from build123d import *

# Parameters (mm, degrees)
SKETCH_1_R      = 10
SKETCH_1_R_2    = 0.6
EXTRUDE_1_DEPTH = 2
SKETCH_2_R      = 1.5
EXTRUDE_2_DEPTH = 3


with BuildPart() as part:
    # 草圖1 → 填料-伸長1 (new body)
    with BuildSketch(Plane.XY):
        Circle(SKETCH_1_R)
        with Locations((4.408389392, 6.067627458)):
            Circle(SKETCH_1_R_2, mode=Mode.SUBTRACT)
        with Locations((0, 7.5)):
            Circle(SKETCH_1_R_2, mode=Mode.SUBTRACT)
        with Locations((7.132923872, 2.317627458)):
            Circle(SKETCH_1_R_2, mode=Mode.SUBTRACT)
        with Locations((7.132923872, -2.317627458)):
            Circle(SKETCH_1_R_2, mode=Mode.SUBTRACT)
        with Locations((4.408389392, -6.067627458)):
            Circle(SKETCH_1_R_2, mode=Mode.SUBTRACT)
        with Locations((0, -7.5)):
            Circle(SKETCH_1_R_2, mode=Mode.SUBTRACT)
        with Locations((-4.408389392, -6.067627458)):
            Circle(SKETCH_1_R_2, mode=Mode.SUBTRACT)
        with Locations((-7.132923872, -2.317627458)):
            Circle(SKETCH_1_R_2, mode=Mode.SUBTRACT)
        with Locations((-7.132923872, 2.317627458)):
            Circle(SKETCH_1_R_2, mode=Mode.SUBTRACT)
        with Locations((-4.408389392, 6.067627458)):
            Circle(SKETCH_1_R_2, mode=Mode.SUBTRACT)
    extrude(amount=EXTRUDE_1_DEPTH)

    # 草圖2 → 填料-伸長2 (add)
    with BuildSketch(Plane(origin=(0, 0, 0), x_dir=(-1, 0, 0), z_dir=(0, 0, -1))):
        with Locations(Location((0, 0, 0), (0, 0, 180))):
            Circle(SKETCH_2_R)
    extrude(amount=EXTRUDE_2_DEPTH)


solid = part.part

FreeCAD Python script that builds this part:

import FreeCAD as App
import Part
import Sketcher
Q = App.Units.Quantity

doc = App.newDocument("Part")
body = doc.addObject("PartDesign::Body", "Body")

# Sketch on XY plane
sketch1 = body.newObject("Sketcher::SketchObject", "Sketch")
sketch1.AttachmentSupport = (doc.getObject("XY_Plane"), [""])
sketch1.MapMode = "FlatFace"
sketch1.addGeometry([
    Part.Circle(App.Vector(0, 0, 0), App.Vector(0, 0, 1), 10),  # 0
    Part.Circle(App.Vector(-4.4, -6.1, 0), App.Vector(0, 0, 1), 0.6),  # 1
    Part.Circle(App.Vector(-7.1, -2.3, 0), App.Vector(0, 0, 1), 0.6),  # 2
    Part.Circle(App.Vector(0, -7.5, 0), App.Vector(0, 0, 1), 0.6),  # 3
    Part.Circle(App.Vector(4.4, -6.1, 0), App.Vector(0, 0, 1), 0.6),  # 4
    Part.Circle(App.Vector(7.1, -2.3, 0), App.Vector(0, 0, 1), 0.6),  # 5
    Part.Circle(App.Vector(-7.1, 2.3, 0), App.Vector(0, 0, 1), 0.6),  # 6
    Part.Circle(App.Vector(-4.4, 6.1, 0), App.Vector(0, 0, 1), 0.6),  # 7
    Part.Circle(App.Vector(7.1, 2.3, 0), App.Vector(0, 0, 1), 0.6),  # 8
    Part.Circle(App.Vector(0, 7.5, 0), App.Vector(0, 0, 1), 0.6),  # 9
    Part.Circle(App.Vector(4.4, 6.1, 0), App.Vector(0, 0, 1), 0.6),  # 10
], False)
sketch1.addConstraint([
    Sketcher.Constraint("Coincident", 0, 3, -1, 1),
    Sketcher.Constraint("Equal", 1, 2),
    Sketcher.Constraint("Equal", 2, 3),
    Sketcher.Constraint("Equal", 3, 4),
    Sketcher.Constraint("Equal", 4, 5),
    Sketcher.Constraint("Equal", 5, 6),
    Sketcher.Constraint("Equal", 6, 7),
    Sketcher.Constraint("Equal", 7, 8),
    Sketcher.Constraint("Equal", 8, 9),
    Sketcher.Constraint("Equal", 9, 10),
    Sketcher.Constraint("Symmetric", 5, 3, 6, 3, -1, 1),
    Sketcher.Constraint("Symmetric", 4, 3, 7, 3, -1, 1),
    Sketcher.Constraint("Symmetric", 2, 3, 8, 3, -1, 1),
    Sketcher.Constraint("Symmetric", 3, 3, 9, 3, -1, 1),
    Sketcher.Constraint("Symmetric", 1, 3, 10, 3, -1, 1),
    Sketcher.Constraint("Symmetric", 1, 3, 4, 3, -2),
    Sketcher.Constraint("Symmetric", 2, 3, 5, 3, -2),
    Sketcher.Constraint("PointOnObject", 3, 3, -2),
    Sketcher.Constraint("Diameter", 0, Q("20 mm")),
    Sketcher.Constraint("Diameter", 1, Q("1.2 mm")),
    Sketcher.Constraint("DistanceY", 3, 3, -1, 1, Q("7.5 mm")),
    Sketcher.Constraint("DistanceY", 1, 3, 2, 3, Q("3.75 mm")),
    Sketcher.Constraint("DistanceX", 1, 3, -1, 1, Q("4.408389 mm")),
    Sketcher.Constraint("DistanceY", 1, 3, -1, 1, Q("6.067627 mm")),
    Sketcher.Constraint("DistanceX", 2, 3, -1, 1, Q("7.132924 mm")),
])
pad1 = body.newObject("PartDesign::Pad", "Pad")
pad1.Profile = sketch1
pad1.Length = 2

# Sketch on XY plane
sketch2 = body.newObject("Sketcher::SketchObject", "Sketch001")
sketch2.AttachmentSupport = (doc.getObject("XY_Plane"), [""])
sketch2.MapMode = "FlatFace"
sketch2.addGeometry(Part.Circle(App.Vector(0, 0, 0), App.Vector(0, 0, 1), 1.5), False)
sketch2.addConstraint([
    Sketcher.Constraint("Coincident", 0, 3, -1, 1),
    Sketcher.Constraint("Diameter", 0, Q("3 mm")),
])
pad2 = body.newObject("PartDesign::Pad", "Pad001")
pad2.Profile = sketch2
pad2.Length = 3
pad2.Reversed = True

doc.recompute()
